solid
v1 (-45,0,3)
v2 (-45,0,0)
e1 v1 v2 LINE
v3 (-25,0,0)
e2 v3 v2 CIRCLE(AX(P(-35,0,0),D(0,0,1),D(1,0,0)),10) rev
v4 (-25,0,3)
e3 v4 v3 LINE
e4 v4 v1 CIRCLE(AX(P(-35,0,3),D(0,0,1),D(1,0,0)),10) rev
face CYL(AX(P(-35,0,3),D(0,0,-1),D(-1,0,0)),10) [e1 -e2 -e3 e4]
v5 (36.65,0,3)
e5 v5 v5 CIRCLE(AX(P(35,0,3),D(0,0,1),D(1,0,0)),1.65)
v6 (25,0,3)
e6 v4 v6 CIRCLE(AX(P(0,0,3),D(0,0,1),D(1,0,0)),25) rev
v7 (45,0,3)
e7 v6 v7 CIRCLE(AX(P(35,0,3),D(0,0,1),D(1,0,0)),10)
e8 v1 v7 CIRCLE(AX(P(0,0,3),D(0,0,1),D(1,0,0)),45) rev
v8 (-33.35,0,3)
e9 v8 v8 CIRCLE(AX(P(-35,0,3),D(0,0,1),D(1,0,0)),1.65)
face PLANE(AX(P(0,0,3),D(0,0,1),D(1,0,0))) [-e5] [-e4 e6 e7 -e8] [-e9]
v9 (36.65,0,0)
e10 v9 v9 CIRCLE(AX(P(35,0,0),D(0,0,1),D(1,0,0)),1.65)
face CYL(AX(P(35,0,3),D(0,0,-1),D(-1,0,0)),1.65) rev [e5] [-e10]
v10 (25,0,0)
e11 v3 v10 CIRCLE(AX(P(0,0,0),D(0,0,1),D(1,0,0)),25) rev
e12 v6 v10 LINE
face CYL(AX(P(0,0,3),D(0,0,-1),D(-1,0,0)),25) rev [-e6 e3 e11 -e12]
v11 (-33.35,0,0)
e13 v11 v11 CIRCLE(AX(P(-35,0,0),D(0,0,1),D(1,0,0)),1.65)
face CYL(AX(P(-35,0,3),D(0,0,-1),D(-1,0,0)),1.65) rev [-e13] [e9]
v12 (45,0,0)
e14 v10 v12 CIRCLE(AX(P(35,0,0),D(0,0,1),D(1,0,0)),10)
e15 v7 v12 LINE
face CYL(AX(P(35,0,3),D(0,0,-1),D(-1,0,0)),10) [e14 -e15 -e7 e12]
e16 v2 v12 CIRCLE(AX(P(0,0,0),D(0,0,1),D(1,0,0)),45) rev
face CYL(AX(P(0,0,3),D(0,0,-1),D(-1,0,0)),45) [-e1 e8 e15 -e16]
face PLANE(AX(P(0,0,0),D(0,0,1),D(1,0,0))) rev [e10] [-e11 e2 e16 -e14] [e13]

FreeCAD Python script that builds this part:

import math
import FreeCAD as App
import Part
import Sketcher

V = App.Vector
Q = App.Units.Quantity

doc = App.newDocument("Part")
body = doc.addObject("PartDesign::Body", "Body")

sketch1 = doc.addObject("Sketcher::SketchObject", "Sketch")
body.addObject(sketch1)
sketch1.AttachmentSupport = (doc.XY_Plane, [""])
sketch1.MapMode = "FlatFace"
sketch1.addGeometry([
    Part.ArcOfCircle(Part.Circle(V(0, 0, 0), V(0, 0, 1), 25), math.radians(0), math.radians(180)),
    Part.ArcOfCircle(Part.Circle(V(35, 0, 0), V(0, 0, 1), 10), math.radians(180), math.radians(360)),
    Part.ArcOfCircle(Part.Circle(V(0, 0, 0), V(0, 0, 1), 45), math.radians(0), math.radians(180)),
    Part.ArcOfCircle(Part.Circle(V(-35, 0, 0), V(0, 0, 1), 10), math.radians(180), math.radians(360)),
    Part.Circle(V(-35, 0, 0), V(0, 0, 1), 1.6),
    Part.Circle(V(35, 0, 0), V(0, 0, 1), 1.6),
], False)
sketch1.addConstraint([
    Sketcher.Constraint("Tangent", 0, 1, 1, 1),
    Sketcher.Constraint("Tangent", 1, 2, 2, 1),
    Sketcher.Constraint("Tangent", 2, 2, 3, 1),
    Sketcher.Constraint("Tangent", 3, 2, 0, 2),
    Sketcher.Constraint("Coincident", 0, 3, -1, 1),
    Sketcher.Constraint("Coincident", 2, 3, -1, 1),
    Sketcher.Constraint("Coincident", 4, 3, 3, 3),
    Sketcher.Constraint("Coincident", 5, 3, 1, 3),
    Sketcher.Constraint("Equal", 4, 5),
    Sketcher.Constraint("PointOnObject", 1, 3, -1),
    Sketcher.Constraint("PointOnObject", 3, 3, -1),
    Sketcher.Constraint("Radius", 0, Q("25 mm")),
    Sketcher.Constraint("Radius", 1, Q("10 mm")),
    Sketcher.Constraint("Diameter", 4, Q("3.3 mm")),
])
pad1 = doc.addObject("PartDesign::Pad", "Pad")
body.addObject(pad1)
pad1.Profile = sketch1
pad1.Length = 3

doc.recompute()
